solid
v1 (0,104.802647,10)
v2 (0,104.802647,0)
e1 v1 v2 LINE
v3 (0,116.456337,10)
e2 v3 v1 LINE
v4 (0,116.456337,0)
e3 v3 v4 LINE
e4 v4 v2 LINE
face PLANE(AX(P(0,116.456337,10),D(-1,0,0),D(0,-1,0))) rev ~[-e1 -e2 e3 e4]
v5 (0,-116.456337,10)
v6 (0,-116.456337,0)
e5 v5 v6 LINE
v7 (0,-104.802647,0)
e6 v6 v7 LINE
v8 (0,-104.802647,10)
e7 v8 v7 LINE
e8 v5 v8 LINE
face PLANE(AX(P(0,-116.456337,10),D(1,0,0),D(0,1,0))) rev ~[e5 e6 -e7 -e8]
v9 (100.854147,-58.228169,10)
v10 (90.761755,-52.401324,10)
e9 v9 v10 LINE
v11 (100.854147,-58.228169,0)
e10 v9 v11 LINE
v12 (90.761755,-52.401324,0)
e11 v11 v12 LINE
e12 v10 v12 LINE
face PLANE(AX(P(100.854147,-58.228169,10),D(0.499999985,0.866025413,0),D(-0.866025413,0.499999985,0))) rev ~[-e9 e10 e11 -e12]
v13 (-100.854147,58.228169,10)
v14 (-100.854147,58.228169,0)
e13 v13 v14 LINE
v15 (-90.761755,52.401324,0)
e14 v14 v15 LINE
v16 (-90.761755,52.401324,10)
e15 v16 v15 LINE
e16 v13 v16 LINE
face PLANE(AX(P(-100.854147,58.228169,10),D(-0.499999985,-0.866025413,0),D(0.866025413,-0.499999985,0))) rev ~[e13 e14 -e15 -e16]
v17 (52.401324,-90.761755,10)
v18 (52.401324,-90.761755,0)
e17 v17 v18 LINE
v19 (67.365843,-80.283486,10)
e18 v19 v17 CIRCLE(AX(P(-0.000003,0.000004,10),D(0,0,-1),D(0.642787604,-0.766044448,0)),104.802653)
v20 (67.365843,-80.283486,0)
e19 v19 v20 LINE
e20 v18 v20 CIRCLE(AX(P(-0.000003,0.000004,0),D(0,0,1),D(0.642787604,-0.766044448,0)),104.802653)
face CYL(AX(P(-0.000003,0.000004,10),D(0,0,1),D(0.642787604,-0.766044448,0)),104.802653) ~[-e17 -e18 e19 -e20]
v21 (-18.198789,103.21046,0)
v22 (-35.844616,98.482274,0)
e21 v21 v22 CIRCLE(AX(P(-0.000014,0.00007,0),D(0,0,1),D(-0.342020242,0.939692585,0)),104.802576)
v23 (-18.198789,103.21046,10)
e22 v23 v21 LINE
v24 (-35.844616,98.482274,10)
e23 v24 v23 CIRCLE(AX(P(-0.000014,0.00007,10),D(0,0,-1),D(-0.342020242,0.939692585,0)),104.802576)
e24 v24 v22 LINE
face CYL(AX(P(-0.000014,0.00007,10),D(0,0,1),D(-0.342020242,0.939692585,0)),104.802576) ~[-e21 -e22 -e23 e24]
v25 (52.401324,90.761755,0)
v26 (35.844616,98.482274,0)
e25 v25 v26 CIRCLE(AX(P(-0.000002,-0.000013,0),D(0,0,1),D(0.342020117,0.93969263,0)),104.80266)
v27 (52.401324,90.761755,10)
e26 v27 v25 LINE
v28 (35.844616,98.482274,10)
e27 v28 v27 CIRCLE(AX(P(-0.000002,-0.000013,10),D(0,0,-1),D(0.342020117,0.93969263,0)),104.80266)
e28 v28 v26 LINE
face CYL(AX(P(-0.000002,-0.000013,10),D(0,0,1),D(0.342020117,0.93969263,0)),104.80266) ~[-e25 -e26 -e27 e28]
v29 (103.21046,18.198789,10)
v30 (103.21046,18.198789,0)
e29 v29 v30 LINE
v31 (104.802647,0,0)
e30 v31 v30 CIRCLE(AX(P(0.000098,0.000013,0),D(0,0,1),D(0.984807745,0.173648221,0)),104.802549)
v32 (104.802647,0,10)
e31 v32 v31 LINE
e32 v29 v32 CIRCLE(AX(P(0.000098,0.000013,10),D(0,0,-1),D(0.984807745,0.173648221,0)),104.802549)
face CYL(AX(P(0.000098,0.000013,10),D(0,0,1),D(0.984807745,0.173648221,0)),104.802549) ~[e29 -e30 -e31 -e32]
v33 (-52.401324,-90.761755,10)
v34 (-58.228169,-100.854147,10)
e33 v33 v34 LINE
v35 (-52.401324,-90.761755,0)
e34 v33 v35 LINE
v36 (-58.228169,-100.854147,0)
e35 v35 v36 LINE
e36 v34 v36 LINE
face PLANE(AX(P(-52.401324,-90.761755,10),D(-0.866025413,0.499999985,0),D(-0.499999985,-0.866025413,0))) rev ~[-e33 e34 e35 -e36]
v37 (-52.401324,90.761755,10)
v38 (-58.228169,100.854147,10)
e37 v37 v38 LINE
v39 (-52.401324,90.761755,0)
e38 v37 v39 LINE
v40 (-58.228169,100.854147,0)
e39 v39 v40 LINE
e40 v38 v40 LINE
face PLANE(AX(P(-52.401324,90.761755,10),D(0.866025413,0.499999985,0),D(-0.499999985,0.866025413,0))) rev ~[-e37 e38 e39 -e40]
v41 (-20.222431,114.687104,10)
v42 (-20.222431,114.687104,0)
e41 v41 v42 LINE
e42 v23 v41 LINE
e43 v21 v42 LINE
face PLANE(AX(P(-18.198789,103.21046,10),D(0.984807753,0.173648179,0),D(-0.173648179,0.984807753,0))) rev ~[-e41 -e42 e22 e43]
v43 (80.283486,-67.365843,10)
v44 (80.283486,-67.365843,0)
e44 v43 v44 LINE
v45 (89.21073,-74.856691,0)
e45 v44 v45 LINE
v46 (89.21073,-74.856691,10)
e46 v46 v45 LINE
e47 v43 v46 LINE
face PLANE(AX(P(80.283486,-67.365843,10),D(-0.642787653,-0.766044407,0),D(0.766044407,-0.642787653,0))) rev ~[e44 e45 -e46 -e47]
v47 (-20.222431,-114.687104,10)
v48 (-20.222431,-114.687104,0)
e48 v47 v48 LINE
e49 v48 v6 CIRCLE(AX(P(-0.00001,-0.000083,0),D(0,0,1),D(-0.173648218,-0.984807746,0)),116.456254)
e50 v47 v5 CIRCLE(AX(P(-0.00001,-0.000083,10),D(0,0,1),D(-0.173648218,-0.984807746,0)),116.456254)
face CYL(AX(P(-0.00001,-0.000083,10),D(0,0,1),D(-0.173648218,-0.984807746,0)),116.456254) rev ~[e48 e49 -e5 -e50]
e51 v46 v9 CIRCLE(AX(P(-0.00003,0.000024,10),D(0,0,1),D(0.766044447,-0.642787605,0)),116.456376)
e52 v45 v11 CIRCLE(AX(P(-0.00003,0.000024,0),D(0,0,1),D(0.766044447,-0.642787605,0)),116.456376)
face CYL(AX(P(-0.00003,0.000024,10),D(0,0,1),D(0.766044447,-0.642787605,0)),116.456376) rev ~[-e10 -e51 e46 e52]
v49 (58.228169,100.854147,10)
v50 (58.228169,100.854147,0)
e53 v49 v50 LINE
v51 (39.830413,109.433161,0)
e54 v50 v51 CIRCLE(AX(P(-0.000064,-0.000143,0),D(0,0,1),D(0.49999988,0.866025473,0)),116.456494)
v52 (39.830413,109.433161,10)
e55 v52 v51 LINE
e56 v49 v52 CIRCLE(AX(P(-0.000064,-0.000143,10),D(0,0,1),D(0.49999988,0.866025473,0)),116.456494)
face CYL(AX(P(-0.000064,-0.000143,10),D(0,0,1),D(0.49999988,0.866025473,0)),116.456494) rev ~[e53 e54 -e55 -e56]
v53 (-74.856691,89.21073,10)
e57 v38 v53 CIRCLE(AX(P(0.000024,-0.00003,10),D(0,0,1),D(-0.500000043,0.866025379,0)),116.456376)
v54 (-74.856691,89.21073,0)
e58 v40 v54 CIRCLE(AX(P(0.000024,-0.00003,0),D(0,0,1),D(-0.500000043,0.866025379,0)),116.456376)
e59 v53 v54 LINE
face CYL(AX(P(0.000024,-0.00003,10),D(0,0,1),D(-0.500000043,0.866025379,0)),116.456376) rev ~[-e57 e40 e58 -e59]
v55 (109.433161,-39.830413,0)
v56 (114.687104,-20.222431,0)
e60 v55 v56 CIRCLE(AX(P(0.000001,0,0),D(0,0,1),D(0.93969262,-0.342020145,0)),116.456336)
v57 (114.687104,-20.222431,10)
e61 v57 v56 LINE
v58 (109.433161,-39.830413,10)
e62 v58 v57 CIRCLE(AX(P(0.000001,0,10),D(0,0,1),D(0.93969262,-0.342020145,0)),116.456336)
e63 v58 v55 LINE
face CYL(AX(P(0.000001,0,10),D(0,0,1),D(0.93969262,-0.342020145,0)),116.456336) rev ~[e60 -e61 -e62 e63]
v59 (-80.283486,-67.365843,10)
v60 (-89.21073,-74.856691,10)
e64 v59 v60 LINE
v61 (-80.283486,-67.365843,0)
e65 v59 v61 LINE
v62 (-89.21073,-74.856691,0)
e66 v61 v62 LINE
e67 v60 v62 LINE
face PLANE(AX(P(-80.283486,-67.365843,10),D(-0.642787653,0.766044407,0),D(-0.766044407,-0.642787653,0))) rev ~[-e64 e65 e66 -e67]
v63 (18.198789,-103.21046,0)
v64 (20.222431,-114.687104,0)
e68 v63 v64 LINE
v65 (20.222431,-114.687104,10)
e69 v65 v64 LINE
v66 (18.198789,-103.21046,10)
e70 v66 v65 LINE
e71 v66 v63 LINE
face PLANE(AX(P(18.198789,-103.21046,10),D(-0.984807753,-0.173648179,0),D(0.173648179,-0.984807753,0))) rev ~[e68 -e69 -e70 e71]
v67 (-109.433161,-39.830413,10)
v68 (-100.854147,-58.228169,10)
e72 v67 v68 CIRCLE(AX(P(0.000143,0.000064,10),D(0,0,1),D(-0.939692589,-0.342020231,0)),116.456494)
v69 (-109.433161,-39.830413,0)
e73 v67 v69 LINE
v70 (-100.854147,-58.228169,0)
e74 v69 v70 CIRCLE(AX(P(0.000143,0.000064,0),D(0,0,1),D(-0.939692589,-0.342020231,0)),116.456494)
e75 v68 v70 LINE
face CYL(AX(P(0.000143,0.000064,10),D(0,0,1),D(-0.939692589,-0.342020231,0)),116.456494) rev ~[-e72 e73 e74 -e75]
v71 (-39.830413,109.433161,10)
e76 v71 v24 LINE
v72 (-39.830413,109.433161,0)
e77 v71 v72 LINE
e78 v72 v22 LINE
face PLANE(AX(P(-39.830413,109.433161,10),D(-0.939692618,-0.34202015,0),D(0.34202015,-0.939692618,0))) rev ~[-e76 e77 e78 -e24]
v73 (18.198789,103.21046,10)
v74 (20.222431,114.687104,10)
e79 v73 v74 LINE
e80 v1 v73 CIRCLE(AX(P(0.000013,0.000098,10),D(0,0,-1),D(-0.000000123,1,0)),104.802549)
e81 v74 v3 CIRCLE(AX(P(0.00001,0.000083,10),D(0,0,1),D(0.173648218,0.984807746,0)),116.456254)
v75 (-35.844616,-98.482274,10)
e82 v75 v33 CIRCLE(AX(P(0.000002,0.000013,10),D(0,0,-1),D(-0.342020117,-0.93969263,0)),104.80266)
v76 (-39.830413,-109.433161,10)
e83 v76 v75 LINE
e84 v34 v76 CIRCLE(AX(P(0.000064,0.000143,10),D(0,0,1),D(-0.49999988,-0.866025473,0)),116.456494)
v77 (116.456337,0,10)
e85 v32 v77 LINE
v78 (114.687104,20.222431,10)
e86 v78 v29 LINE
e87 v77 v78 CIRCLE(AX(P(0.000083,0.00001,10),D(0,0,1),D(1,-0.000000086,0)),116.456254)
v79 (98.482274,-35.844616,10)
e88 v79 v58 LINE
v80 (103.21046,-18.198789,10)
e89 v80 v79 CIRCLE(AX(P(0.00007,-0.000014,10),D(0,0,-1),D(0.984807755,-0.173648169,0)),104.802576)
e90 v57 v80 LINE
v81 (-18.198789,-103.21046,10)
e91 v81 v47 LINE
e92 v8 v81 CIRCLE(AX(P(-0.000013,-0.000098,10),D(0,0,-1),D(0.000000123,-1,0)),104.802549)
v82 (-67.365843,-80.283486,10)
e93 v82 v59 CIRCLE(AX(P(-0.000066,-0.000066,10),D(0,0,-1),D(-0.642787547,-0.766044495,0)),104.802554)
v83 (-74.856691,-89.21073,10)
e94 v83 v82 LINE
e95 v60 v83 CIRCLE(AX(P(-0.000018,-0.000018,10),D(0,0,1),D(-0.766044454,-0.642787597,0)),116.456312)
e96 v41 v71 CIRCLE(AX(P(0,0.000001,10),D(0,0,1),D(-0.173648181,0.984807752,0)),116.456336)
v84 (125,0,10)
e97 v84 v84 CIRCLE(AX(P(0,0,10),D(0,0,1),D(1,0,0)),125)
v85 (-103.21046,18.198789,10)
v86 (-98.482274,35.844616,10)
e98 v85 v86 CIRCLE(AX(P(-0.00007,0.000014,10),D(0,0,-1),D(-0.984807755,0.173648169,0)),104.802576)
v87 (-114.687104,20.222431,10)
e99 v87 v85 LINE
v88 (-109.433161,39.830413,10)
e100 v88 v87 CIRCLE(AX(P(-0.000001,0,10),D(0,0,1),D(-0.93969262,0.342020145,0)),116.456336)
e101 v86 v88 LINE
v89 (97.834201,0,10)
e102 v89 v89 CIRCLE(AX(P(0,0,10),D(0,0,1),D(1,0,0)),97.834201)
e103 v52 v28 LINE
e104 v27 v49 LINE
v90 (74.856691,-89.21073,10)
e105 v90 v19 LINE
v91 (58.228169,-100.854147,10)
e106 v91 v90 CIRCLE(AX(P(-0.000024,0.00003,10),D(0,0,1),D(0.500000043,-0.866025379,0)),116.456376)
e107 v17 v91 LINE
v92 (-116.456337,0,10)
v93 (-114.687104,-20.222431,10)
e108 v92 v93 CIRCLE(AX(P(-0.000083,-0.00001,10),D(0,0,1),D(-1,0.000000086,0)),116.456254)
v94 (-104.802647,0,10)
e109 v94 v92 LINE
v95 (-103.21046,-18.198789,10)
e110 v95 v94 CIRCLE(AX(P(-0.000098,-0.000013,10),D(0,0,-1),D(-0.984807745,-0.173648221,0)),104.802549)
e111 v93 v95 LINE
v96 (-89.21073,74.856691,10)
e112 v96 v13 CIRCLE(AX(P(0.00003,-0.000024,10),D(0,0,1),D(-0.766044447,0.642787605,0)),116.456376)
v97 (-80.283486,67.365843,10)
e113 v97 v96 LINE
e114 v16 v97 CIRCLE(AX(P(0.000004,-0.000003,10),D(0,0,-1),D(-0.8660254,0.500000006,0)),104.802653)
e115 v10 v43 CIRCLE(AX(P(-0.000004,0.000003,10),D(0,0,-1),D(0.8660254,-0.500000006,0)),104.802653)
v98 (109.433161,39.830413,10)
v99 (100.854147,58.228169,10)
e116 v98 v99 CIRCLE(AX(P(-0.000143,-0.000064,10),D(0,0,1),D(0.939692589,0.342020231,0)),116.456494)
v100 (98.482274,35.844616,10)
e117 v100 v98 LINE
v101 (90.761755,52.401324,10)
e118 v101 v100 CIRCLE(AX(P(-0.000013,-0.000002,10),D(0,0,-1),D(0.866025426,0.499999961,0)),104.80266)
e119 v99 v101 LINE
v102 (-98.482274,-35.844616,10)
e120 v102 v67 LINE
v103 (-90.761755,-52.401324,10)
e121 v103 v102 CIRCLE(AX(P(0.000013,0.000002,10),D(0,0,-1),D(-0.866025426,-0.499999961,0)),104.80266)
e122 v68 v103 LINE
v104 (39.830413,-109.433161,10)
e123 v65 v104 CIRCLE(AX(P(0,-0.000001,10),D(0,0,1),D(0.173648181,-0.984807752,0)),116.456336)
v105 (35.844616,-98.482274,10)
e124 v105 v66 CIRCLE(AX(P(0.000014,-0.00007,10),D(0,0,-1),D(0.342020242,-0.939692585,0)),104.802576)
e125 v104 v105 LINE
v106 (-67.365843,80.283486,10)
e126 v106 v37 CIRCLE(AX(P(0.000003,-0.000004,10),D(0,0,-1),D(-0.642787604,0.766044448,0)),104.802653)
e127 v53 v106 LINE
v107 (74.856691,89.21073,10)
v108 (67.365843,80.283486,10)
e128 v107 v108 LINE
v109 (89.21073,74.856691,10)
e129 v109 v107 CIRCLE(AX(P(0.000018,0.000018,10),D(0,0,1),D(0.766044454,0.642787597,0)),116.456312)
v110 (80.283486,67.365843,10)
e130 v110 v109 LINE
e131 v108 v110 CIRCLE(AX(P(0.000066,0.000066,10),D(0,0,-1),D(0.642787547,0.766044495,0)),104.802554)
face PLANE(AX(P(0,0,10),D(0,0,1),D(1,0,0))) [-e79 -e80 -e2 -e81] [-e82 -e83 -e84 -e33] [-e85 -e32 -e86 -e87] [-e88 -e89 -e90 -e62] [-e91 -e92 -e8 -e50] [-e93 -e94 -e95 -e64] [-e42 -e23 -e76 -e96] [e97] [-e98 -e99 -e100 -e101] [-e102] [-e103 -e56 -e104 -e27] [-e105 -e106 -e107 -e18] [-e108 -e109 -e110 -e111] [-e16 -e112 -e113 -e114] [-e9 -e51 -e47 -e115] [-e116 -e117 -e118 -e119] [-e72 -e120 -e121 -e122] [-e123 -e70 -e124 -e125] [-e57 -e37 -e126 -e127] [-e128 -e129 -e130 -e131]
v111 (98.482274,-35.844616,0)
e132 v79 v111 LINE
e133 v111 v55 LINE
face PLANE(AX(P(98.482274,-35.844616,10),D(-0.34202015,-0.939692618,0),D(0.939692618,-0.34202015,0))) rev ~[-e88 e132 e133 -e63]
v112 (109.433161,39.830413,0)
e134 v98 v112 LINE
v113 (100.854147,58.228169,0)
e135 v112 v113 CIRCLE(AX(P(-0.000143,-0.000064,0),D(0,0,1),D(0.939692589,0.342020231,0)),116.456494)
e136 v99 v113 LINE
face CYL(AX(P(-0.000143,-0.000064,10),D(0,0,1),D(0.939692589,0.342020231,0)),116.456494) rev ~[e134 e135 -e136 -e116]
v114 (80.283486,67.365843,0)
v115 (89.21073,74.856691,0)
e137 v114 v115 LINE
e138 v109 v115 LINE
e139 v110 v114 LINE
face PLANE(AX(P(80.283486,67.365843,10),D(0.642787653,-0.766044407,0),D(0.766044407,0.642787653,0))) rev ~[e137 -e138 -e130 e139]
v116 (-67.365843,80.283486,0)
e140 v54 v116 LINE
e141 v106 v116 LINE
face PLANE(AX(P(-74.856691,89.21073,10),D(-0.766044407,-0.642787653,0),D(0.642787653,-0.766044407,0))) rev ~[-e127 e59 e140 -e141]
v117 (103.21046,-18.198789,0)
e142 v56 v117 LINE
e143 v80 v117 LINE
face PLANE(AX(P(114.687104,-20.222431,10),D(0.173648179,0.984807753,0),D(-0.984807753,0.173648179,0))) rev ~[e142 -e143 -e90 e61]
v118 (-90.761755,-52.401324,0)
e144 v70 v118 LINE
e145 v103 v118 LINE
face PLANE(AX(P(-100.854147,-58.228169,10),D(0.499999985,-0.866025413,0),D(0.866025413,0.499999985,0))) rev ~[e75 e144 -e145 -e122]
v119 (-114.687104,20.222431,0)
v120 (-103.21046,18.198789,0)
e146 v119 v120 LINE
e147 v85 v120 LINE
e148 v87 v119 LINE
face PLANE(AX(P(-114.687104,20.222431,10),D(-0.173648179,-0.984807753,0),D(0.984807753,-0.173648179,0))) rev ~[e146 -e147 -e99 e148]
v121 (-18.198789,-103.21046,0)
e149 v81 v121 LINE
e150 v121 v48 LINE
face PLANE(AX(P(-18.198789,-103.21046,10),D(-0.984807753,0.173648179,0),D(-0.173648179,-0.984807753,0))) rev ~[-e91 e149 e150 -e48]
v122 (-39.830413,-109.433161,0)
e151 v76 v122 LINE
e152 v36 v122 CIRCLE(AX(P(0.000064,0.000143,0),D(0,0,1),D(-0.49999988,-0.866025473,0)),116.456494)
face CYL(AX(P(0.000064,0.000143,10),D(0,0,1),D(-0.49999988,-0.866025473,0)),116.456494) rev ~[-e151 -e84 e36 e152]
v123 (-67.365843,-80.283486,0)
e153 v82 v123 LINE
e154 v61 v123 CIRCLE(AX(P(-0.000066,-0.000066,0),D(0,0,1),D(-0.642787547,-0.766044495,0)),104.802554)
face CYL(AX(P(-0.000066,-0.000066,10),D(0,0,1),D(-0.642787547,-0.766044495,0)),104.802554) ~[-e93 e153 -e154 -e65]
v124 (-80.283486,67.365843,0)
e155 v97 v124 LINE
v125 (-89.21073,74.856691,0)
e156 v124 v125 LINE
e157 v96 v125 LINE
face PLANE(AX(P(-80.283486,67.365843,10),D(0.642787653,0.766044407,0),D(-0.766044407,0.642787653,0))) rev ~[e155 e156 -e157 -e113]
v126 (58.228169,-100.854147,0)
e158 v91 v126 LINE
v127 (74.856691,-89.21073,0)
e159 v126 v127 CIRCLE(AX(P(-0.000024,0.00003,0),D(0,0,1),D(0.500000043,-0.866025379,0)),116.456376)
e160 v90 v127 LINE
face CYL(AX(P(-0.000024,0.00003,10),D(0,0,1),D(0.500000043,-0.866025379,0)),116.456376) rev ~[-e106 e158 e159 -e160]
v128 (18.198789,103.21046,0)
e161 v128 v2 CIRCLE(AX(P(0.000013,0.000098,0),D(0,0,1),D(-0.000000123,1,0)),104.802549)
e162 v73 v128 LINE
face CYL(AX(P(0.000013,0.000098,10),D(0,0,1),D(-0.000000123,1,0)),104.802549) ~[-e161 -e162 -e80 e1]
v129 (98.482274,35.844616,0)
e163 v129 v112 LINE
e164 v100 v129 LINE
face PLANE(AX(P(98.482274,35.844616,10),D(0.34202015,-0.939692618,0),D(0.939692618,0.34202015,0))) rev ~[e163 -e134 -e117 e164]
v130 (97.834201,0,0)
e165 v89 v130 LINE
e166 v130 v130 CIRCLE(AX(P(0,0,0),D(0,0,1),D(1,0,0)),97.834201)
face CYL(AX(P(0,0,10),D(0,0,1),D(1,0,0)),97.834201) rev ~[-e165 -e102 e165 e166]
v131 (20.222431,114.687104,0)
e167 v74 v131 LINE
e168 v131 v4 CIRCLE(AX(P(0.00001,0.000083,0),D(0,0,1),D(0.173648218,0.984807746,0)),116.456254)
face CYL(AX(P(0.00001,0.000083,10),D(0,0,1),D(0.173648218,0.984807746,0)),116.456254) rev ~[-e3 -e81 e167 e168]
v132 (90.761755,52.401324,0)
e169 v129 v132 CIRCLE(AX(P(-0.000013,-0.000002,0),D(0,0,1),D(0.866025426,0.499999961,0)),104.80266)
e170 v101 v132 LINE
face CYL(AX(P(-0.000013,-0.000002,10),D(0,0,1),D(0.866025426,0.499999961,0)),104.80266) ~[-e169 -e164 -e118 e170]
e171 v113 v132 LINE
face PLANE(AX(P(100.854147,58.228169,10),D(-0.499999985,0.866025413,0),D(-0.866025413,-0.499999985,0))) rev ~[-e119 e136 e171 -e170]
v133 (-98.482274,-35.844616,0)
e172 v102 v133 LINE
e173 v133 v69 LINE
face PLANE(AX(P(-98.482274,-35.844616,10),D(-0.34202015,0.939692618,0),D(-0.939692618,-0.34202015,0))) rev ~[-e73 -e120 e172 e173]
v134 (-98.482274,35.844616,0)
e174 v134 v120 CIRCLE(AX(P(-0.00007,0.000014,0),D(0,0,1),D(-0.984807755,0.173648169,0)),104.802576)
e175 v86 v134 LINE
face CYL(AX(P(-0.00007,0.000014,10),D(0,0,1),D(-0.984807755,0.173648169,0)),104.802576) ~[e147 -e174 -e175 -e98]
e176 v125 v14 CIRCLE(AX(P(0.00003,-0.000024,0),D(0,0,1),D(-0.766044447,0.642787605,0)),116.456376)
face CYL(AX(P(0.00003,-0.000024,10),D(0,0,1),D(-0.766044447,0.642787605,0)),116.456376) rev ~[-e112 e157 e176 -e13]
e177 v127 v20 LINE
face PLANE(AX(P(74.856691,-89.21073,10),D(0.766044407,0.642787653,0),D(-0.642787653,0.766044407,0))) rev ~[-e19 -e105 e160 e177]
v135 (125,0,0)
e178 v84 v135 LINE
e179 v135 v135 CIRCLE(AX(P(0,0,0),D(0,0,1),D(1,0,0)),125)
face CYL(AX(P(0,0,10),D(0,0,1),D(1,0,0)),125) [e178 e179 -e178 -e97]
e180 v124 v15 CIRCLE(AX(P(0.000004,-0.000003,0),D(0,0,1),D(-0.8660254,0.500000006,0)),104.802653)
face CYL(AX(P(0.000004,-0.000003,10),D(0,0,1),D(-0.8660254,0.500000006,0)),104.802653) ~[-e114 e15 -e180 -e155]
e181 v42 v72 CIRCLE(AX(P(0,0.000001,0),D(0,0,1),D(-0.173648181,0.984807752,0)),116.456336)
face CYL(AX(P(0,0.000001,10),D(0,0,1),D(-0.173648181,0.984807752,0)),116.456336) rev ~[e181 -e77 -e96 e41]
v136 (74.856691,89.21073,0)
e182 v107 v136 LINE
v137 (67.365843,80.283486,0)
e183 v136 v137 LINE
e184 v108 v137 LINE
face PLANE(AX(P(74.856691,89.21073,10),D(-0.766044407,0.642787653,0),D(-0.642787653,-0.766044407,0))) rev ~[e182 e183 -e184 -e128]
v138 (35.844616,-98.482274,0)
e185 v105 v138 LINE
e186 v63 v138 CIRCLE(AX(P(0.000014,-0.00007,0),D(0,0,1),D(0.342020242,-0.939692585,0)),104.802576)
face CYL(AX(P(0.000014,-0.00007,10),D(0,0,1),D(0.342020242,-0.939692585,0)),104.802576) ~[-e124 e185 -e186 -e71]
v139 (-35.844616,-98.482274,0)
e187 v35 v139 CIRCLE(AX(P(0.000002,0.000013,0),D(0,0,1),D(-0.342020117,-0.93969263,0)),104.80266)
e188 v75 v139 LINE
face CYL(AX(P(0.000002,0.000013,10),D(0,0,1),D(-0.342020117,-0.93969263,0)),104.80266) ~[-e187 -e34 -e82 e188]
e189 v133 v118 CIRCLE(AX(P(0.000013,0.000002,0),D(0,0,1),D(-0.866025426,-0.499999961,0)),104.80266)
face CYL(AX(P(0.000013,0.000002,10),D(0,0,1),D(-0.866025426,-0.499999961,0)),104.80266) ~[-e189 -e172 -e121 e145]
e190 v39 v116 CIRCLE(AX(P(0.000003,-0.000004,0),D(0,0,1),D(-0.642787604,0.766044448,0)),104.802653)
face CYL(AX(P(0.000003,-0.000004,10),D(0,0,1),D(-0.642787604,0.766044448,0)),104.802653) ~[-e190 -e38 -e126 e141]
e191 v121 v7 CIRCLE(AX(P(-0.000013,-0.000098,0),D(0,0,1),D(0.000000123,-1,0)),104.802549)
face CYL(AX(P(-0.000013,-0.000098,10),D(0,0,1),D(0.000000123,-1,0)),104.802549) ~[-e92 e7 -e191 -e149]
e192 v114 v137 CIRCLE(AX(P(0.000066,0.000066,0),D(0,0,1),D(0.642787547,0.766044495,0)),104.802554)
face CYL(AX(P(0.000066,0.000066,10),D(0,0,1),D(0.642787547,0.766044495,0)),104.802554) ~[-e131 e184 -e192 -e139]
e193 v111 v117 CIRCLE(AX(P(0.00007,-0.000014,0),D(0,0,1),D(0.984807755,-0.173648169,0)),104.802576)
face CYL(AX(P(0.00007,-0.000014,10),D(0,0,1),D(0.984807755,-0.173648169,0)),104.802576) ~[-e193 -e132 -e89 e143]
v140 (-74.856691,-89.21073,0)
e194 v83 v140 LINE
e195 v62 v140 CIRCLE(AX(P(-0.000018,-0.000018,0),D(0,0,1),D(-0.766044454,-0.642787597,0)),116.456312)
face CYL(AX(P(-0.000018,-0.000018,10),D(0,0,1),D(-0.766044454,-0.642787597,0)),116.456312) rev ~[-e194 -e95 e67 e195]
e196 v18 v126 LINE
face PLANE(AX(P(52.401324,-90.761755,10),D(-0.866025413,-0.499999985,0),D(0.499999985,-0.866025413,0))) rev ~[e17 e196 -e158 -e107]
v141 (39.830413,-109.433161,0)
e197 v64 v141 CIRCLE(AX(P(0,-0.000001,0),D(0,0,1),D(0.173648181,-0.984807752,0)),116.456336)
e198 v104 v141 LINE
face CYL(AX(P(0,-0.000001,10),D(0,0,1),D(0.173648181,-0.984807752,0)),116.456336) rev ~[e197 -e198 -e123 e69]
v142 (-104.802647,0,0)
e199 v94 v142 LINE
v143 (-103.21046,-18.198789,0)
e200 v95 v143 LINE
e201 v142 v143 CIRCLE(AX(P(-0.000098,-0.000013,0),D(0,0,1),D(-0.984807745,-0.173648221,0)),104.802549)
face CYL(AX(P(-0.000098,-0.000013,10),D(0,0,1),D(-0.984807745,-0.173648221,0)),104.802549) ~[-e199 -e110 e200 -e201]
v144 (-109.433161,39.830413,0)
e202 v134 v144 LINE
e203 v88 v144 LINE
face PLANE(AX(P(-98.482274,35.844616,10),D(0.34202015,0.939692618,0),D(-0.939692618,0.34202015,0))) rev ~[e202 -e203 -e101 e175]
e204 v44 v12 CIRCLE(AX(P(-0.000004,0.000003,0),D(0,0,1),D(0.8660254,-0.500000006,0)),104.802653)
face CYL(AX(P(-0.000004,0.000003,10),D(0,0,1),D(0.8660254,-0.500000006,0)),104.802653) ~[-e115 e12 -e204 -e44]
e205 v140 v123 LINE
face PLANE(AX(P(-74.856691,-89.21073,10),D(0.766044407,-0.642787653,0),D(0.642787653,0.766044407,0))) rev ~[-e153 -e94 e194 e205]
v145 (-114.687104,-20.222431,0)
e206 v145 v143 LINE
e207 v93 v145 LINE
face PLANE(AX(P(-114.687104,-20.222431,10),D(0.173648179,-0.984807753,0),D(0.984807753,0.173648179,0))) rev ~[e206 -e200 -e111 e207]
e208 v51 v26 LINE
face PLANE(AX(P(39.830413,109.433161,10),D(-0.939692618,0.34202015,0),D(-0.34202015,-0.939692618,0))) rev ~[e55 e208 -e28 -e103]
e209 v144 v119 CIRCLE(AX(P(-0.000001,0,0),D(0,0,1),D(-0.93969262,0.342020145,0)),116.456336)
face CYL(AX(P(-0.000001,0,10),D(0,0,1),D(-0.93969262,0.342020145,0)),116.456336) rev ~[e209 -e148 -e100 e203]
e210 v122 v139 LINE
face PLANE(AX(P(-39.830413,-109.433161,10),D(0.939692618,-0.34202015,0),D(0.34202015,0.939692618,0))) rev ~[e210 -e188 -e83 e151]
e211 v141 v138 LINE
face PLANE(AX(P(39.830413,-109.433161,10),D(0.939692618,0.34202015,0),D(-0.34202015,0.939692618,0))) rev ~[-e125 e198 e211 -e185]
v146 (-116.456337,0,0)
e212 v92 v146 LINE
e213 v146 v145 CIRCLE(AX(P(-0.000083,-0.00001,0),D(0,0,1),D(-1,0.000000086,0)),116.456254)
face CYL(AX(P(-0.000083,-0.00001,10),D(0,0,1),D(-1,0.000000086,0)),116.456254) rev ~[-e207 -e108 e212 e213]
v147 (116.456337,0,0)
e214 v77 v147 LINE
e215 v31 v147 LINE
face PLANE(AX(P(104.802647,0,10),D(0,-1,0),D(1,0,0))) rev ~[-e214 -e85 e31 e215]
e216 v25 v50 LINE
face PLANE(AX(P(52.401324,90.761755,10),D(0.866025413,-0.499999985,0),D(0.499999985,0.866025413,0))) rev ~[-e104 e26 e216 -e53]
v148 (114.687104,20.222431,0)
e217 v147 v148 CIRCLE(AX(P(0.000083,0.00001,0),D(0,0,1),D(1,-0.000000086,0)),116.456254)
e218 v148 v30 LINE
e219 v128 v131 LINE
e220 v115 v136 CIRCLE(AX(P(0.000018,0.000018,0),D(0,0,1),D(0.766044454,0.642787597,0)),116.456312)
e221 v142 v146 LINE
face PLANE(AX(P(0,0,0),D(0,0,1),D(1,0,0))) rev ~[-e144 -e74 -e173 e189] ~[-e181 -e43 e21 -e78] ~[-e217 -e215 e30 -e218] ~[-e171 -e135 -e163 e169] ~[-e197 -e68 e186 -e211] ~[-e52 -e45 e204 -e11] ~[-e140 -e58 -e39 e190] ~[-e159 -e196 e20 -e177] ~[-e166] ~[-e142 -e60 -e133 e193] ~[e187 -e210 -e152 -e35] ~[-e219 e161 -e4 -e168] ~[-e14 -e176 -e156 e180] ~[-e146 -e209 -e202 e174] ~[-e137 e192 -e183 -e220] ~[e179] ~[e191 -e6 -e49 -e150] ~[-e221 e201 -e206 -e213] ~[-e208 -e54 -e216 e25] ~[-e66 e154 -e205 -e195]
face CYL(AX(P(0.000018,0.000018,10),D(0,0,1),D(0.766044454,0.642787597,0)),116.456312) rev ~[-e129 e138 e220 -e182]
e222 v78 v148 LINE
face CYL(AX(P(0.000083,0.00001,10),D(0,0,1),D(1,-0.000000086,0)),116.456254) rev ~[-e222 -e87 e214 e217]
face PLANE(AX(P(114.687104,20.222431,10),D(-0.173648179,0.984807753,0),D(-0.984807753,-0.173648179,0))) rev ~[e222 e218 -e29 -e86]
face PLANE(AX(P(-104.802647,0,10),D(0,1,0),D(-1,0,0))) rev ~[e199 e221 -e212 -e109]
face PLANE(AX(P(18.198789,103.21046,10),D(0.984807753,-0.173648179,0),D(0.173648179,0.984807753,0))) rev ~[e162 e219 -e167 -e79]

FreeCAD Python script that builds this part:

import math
import FreeCAD as App
import Part
import Sketcher

V = App.Vector
Q = App.Units.Quantity

doc = App.newDocument("Part")
body = doc.addObject("PartDesign::Body", "Body")

# Sketch on XY plane
sketch1 = body.newObject("Sketcher::SketchObject", "Sketch")
sketch1.AttachmentSupport = (doc.getObject("XY_Plane"), [""])
sketch1.MapMode = "FlatFace"
sketch1.addGeometry([
    Part.Circle(V(0, 0, 0), V(0, 0, 1), 50),  # 0
    Part.LineSegment(V(-10, 10, 0), V(-10, 30, 0)),  # 1
    Part.LineSegment(V(-10, 30, 0), V(10, 30, 0)),  # 2
    Part.LineSegment(V(10, 30, 0), V(10, 10, 0)),  # 3
    Part.LineSegment(V(10, 10, 0), V(30, 10, 0)),  # 4
    Part.LineSegment(V(30, 10, 0), V(30, -10, 0)),  # 5
    Part.LineSegment(V(30, -10, 0), V(10, -10, 0)),  # 6
    Part.LineSegment(V(10, -10, 0), V(10, -30, 0)),  # 7
    Part.LineSegment(V(10, -30, 0), V(-10, -30, 0)),  # 8
    Part.LineSegment(V(-10, -30, 0), V(-10, -10, 0)),  # 9
    Part.LineSegment(V(-10, -10, 0), V(-30, -10, 0)),  # 10
    Part.LineSegment(V(-30, -10, 0), V(-30, 10, 0)),  # 11
    Part.LineSegment(V(-30, 10, 0), V(-10, 10, 0)),  # 12
], False)
sketch1.addConstraint([
    Sketcher.Constraint("Coincident", 1, 2, 2, 1),
    Sketcher.Constraint("Coincident", 2, 2, 3, 1),
    Sketcher.Constraint("Coincident", 3, 2, 4, 1),
    Sketcher.Constraint("Coincident", 4, 2, 5, 1),
    Sketcher.Constraint("Coincident", 5, 2, 6, 1),
    Sketcher.Constraint("Coincident", 6, 2, 7, 1),
    Sketcher.Constraint("Coincident", 7, 2, 8, 1),
    Sketcher.Constraint("Coincident", 8, 2, 9, 1),
    Sketcher.Constraint("Coincident", 9, 2, 10, 1),
    Sketcher.Constraint("Coincident", 10, 2, 11, 1),
    Sketcher.Constraint("Coincident", 11, 2, 12, 1),
    Sketcher.Constraint("Coincident", 12, 2, 1, 1),
    Sketcher.Constraint("Vertical", 1),
    Sketcher.Constraint("Horizontal", 2),
    Sketcher.Constraint("Vertical", 3),
    Sketcher.Constraint("Horizontal", 4),
    Sketcher.Constraint("Vertical", 5),
    Sketcher.Constraint("Horizontal", 6),
    Sketcher.Constraint("Vertical", 7),
    Sketcher.Constraint("Horizontal", 8),
    Sketcher.Constraint("Vertical", 9),
    Sketcher.Constraint("Horizontal", 10),
    Sketcher.Constraint("Vertical", 11),
    Sketcher.Constraint("Horizontal", 12),
    Sketcher.Constraint("Coincident", 0, 3, -1, 1),
    Sketcher.Constraint("Symmetric", 1, 2, 7, 2, -1, 1),
    Sketcher.Constraint("Symmetric", 3, 2, 9, 2, -1, 1),
    Sketcher.Constraint("Symmetric", 5, 2, 11, 2, -1, 1),
    Sketcher.Constraint("Symmetric", 6, 2, 9, 2, -2),
    Sketcher.Constraint("Equal", 2, 4),
    Sketcher.Constraint("Equal", 12, 1),
    Sketcher.Constraint("Equal", 3, 5),
    Sketcher.Constraint("Diameter", 0, Q("100 mm")),
    Sketcher.Constraint("DistanceX", 2, 1, 2, 2, Q("20 mm")),
])
pad1 = body.newObject("PartDesign::Pad", "Pad")
pad1.Profile = sketch1
pad1.Length = 10

# Sketch on XY plane
sketch2 = body.newObject("Sketcher::SketchObject", "Sketch001")
sketch2.AttachmentSupport = (doc.getObject("XY_Plane"), [""])
sketch2.MapMode = "FlatFace"
sketch2.AttachmentOffset = App.Placement(V(0, 0, 10), App.Rotation())
sketch2.addGeometry([
    Part.Circle(V(0, 0, 0), V(0, 0, 1), 125),
    Part.Circle(V(0, 0, 0), V(0, 0, 1), 40.44952),
], False)
sketch2.addConstraint([
    Sketcher.Constraint("Coincident", 0, 3, -1, 1),
    Sketcher.Constraint("Coincident", 1, 3, -1, 1),
    Sketcher.Constraint("Diameter", 0, Q("250 mm")),
    Sketcher.Constraint("Diameter", 1, Q("80.89904 mm")),
])
pad2 = body.newObject("PartDesign::Pad", "Pad001")
pad2.Profile = sketch2
pad2.Length = 10
pad2.Reversed = True

# Sketch on XY plane
sketch3 = body.newObject("Sketcher::SketchObject", "Sketch002")
sketch3.AttachmentSupport = (doc.getObject("XY_Plane"), [""])
sketch3.MapMode = "FlatFace"
sketch3.AttachmentOffset = App.Placement(V(0, 0, 10), App.Rotation())
sketch3.addGeometry([
    Part.LineSegment(V(0, 116.456337, 0), V(0, 104.802647, 0)),  # 0
    Part.ArcOfCircle(Part.Circle(V(0.000013, 0.000098, 0), V(0, 0, 1), 104.802549), math.radians(79.999997), math.radians(90.000007)),  # 1
    Part.LineSegment(V(18.198789, 103.21046, 0), V(20.222431, 114.687104, 0)),  # 2
    Part.ArcOfCircle(Part.Circle(V(0.00001, 0.000083, 0), V(0, 0, 1), 116.456254), math.radians(79.999998), math.radians(90.000005)),  # 3
    Part.ArcOfCircle(Part.Circle(V(-0.000014, 0.00007, 0), V(0, 0, 1), 104.802576), math.radians(99.999999), math.radians(110.000006)),  # 4
    Part.LineSegment(V(-18.198789, 103.21046, 0), V(-20.222431, 114.687104, 0)),  # 5
    Part.ArcOfCircle(Part.Circle(V(0, 0.000001, 0), V(0, 0, 1), 116.456336), math.radians(100), math.radians(110)),  # 6
    Part.LineSegment(V(-39.830413, 109.433161, 0), V(-35.844616, 98.482274, 0)),  # 7
    Part.ArcOfCircle(Part.Circle(V(0.000003, -0.000004, 0), V(0, 0, 1), 104.802653), math.radians(120), math.radians(130)),  # 8
    Part.LineSegment(V(-52.401324, 90.761755, 0), V(-58.228169, 100.854147, 0)),  # 9
    Part.ArcOfCircle(Part.Circle(V(0.000024, -0.00003, 0), V(0, 0, 1), 116.456376), math.radians(120.000003), math.radians(130)),  # 10
    Part.LineSegment(V(-74.856691, 89.21073, 0), V(-67.365843, 80.283486, 0)),  # 11
    Part.ArcOfCircle(Part.Circle(V(0.000004, -0.000003, 0), V(0, 0, 1), 104.802653), math.radians(140), math.radians(150)),  # 12
    Part.LineSegment(V(-80.283486, 67.365843, 0), V(-89.21073, 74.856691, 0)),  # 13
    Part.ArcOfCircle(Part.Circle(V(0.00003, -0.000024, 0), V(0, 0, 1), 116.456376), math.radians(140), math.radians(149.999997)),  # 14
    Part.LineSegment(V(-100.854147, 58.228169, 0), V(-90.761755, 52.401324, 0)),  # 15
    Part.ArcOfCircle(Part.Circle(V(-0.00007, 0.000014, 0), V(0, 0, 1), 104.802576), math.radians(159.999994), math.radians(170.000001)),  # 16
    Part.LineSegment(V(-98.482274, 35.844616, 0), V(-109.433161, 39.830413, 0)),  # 17
    Part.ArcOfCircle(Part.Circle(V(-0.000001, 0, 0), V(0, 0, 1), 116.456336), math.radians(160), math.radians(170)),  # 18
    Part.LineSegment(V(-114.687104, 20.222431, 0), V(-103.21046, 18.198789, 0)),  # 19
    Part.ArcOfCircle(Part.Circle(V(-0.000098, -0.000013, 0), V(0, 0, 1), 104.802549), math.radians(179.999993), math.radians(190.000003)),  # 20
    Part.LineSegment(V(-104.802647, 0, 0), V(-116.456337, 0, 0)),  # 21
    Part.ArcOfCircle(Part.Circle(V(-0.000083, -0.00001, 0), V(0, 0, 1), 116.456254), math.radians(179.999995), math.radians(190.000002)),  # 22
    Part.LineSegment(V(-114.687104, -20.222431, 0), V(-103.21046, -18.198789, 0)),  # 23
    Part.ArcOfCircle(Part.Circle(V(0.000013, 0.000002, 0), V(0, 0, 1), 104.80266), math.radians(-160.000002), math.radians(-150.000003)),  # 24
    Part.LineSegment(V(-98.482274, -35.844616, 0), V(-109.433161, -39.830413, 0)),  # 25
    Part.ArcOfCircle(Part.Circle(V(0.000143, 0.000064, 0), V(0, 0, 1), 116.456494), math.radians(-159.999995), math.radians(-150.000008)),  # 26
    Part.LineSegment(V(-100.854147, -58.228169, 0), V(-90.761755, -52.401324, 0)),  # 27
    Part.ArcOfCircle(Part.Circle(V(-0.000066, -0.000066, 0), V(0, 0, 1), 104.802554), math.radians(-140.000005), math.radians(-129.999995)),  # 28
    Part.LineSegment(V(-80.283486, -67.365843, 0), V(-89.21073, -74.856691, 0)),  # 29
    Part.ArcOfCircle(Part.Circle(V(-0.000018, -0.000018, 0), V(0, 0, 1), 116.456312), math.radians(-140.000001), math.radians(-129.999999)),  # 30
    Part.LineSegment(V(-74.856691, -89.21073, 0), V(-67.365843, -80.283486, 0)),  # 31
    Part.ArcOfCircle(Part.Circle(V(0.000002, 0.000013, 0), V(0, 0, 1), 104.80266), math.radians(-119.999997), math.radians(-109.999998)),  # 32
    Part.LineSegment(V(-52.401324, -90.761755, 0), V(-58.228169, -100.854147, 0)),  # 33
    Part.ArcOfCircle(Part.Circle(V(0.000064, 0.000143, 0), V(0, 0, 1), 116.456494), math.radians(-119.999992), math.radians(-110.000005)),  # 34
    Part.LineSegment(V(-39.830413, -109.433161, 0), V(-35.844616, -98.482274, 0)),  # 35
    Part.ArcOfCircle(Part.Circle(V(-0.000013, -0.000098, 0), V(0, 0, 1), 104.802549), math.radians(-100.000003), math.radians(-89.999993)),  # 36
    Part.LineSegment(V(-18.198789, -103.21046, 0), V(-20.222431, -114.687104, 0)),  # 37
    Part.ArcOfCircle(Part.Circle(V(-0.00001, -0.000083, 0), V(0, 0, 1), 116.456254), math.radians(-100.000002), math.radians(-89.999995)),  # 38
    Part.LineSegment(V(0, -116.456337, 0), V(0, -104.802647, 0)),  # 39
    Part.ArcOfCircle(Part.Circle(V(0.000014, -0.00007, 0), V(0, 0, 1), 104.802576), math.radians(-80.000001), math.radians(-69.999994)),  # 40
    Part.LineSegment(V(18.198789, -103.21046, 0), V(20.222431, -114.687104, 0)),  # 41
    Part.ArcOfCircle(Part.Circle(V(0, -0.000001, 0), V(0, 0, 1), 116.456336), math.radians(-80), math.radians(-70)),  # 42
    Part.LineSegment(V(39.830413, -109.433161, 0), V(35.844616, -98.482274, 0)),  # 43
    Part.ArcOfCircle(Part.Circle(V(-0.000003, 0.000004, 0), V(0, 0, 1), 104.802653), math.radians(-60), math.radians(-50)),  # 44
    Part.LineSegment(V(52.401324, -90.761755, 0), V(58.228169, -100.854147, 0)),  # 45
    Part.ArcOfCircle(Part.Circle(V(-0.000024, 0.00003, 0), V(0, 0, 1), 116.456376), math.radians(-59.999997), math.radians(-50)),  # 46
    Part.LineSegment(V(74.856691, -89.21073, 0), V(67.365843, -80.283486, 0)),  # 47
    Part.ArcOfCircle(Part.Circle(V(-0.000004, 0.000003, 0), V(0, 0, 1), 104.802653), math.radians(-40), math.radians(-30)),  # 48
    Part.LineSegment(V(80.283486, -67.365843, 0), V(89.21073, -74.856691, 0)),  # 49
    Part.ArcOfCircle(Part.Circle(V(-0.00003, 0.000024, 0), V(0, 0, 1), 116.456376), math.radians(-40), math.radians(-30.000003)),  # 50
    Part.LineSegment(V(100.854147, -58.228169, 0), V(90.761755, -52.401324, 0)),  # 51
    Part.ArcOfCircle(Part.Circle(V(0.00007, -0.000014, 0), V(0, 0, 1), 104.802576), math.radians(-20.000006), math.radians(-9.999999)),  # 52
    Part.LineSegment(V(98.482274, -35.844616, 0), V(109.433161, -39.830413, 0)),  # 53
    Part.ArcOfCircle(Part.Circle(V(0.000001, 0, 0), V(0, 0, 1), 116.456336), math.radians(-20), math.radians(-10)),  # 54
    Part.LineSegment(V(114.687104, -20.222431, 0), V(103.21046, -18.198789, 0)),  # 55
    Part.ArcOfCircle(Part.Circle(V(0.000098, 0.000013, 0), V(0, 0, 1), 104.802549), math.radians(-0.000007), math.radians(10.000003)),  # 56
    Part.LineSegment(V(104.802647, 0, 0), V(116.456337, 0, 0)),  # 57
    Part.ArcOfCircle(Part.Circle(V(0.000083, 0.00001, 0), V(0, 0, 1), 116.456254), math.radians(-0.000005), math.radians(10.000002)),  # 58
    Part.LineSegment(V(114.687104, 20.222431, 0), V(103.21046, 18.198789, 0)),  # 59
    Part.ArcOfCircle(Part.Circle(V(-0.000013, -0.000002, 0), V(0, 0, 1), 104.80266), math.radians(19.999998), math.radians(29.999997)),  # 60
    Part.LineSegment(V(98.482274, 35.844616, 0), V(109.433161, 39.830413, 0)),  # 61
    Part.ArcOfCircle(Part.Circle(V(-0.000143, -0.000064, 0), V(0, 0, 1), 116.456494), math.radians(20.000005), math.radians(29.999992)),  # 62
    Part.LineSegment(V(100.854147, 58.228169, 0), V(90.761755, 52.401324, 0)),  # 63
    Part.ArcOfCircle(Part.Circle(V(0.000066, 0.000066, 0), V(0, 0, 1), 104.802554), math.radians(39.999995), math.radians(50.000005)),  # 64
    Part.LineSegment(V(80.283486, 67.365843, 0), V(89.21073, 74.856691, 0)),  # 65
    Part.ArcOfCircle(Part.Circle(V(0.000018, 0.000018, 0), V(0, 0, 1), 116.456312), math.radians(39.999999), math.radians(50.000001)),  # 66
    Part.LineSegment(V(74.856691, 89.21073, 0), V(67.365843, 80.283486, 0)),  # 67
    Part.ArcOfCircle(Part.Circle(V(-0.000002, -0.000013, 0), V(0, 0, 1), 104.80266), math.radians(60.000003), math.radians(70.000002)),  # 68
    Part.LineSegment(V(52.401324, 90.761755, 0), V(58.228169, 100.854147, 0)),  # 69
    Part.ArcOfCircle(Part.Circle(V(-0.000064, -0.000143, 0), V(0, 0, 1), 116.456494), math.radians(60.000008), math.radians(69.999995)),  # 70
    Part.LineSegment(V(39.830413, 109.433161, 0), V(35.844616, 98.482274, 0)),  # 71
], False)
sketch3.addConstraint([
    Sketcher.Constraint("Coincident", 0, 2, 1, 2),
    Sketcher.Constraint("Coincident", 1, 1, 2, 1),
    Sketcher.Constraint("Coincident", 2, 2, 3, 1),
    Sketcher.Constraint("Coincident", 3, 2, 0, 1),
    Sketcher.Constraint("Coincident", 4, 1, 5, 1),
    Sketcher.Constraint("Coincident", 5, 2, 6, 1),
    Sketcher.Constraint("Coincident", 6, 2, 7, 1),
    Sketcher.Constraint("Coincident", 7, 2, 4, 2),
    Sketcher.Constraint("Coincident", 8, 1, 9, 1),
    Sketcher.Constraint("Coincident", 9, 2, 10, 1),
    Sketcher.Constraint("Coincident", 10, 2, 11, 1),
    Sketcher.Constraint("Coincident", 11, 2, 8, 2),
    Sketcher.Constraint("Coincident", 12, 1, 13, 1),
    Sketcher.Constraint("Coincident", 13, 2, 14, 1),
    Sketcher.Constraint("Coincident", 14, 2, 15, 1),
    Sketcher.Constraint("Coincident", 15, 2, 12, 2),
    Sketcher.Constraint("Coincident", 16, 1, 17, 1),
    Sketcher.Constraint("Coincident", 17, 2, 18, 1),
    Sketcher.Constraint("Coincident", 18, 2, 19, 1),
    Sketcher.Constraint("Coincident", 19, 2, 16, 2),
    Sketcher.Constraint("Coincident", 20, 1, 21, 1),
    Sketcher.Constraint("Coincident", 21, 2, 22, 1),
    Sketcher.Constraint("Coincident", 22, 2, 23, 1),
    Sketcher.Constraint("Coincident", 23, 2, 20, 2),
    Sketcher.Constraint("Coincident", 24, 1, 25, 1),
    Sketcher.Constraint("Coincident", 25, 2, 26, 1),
    Sketcher.Constraint("Coincident", 26, 2, 27, 1),
    Sketcher.Constraint("Coincident", 27, 2, 24, 2),
    Sketcher.Constraint("Coincident", 28, 1, 29, 1),
    Sketcher.Constraint("Coincident", 29, 2, 30, 1),
    Sketcher.Constraint("Coincident", 30, 2, 31, 1),
    Sketcher.Constraint("Coincident", 31, 2, 28, 2),
    Sketcher.Constraint("Coincident", 32, 1, 33, 1),
    Sketcher.Constraint("Coincident", 33, 2, 34, 1),
    Sketcher.Constraint("Coincident", 34, 2, 35, 1),
    Sketcher.Constraint("Coincident", 35, 2, 32, 2),
    Sketcher.Constraint("Coincident", 36, 1, 37, 1),
    Sketcher.Constraint("Coincident", 37, 2, 38, 1),
    Sketcher.Constraint("Coincident", 38, 2, 39, 1),
    Sketcher.Constraint("Coincident", 39, 2, 36, 2),
    Sketcher.Constraint("Coincident", 40, 1, 41, 1),
    Sketcher.Constraint("Coincident", 41, 2, 42, 1),
    Sketcher.Constraint("Coincident", 42, 2, 43, 1),
    Sketcher.Constraint("Coincident", 43, 2, 40, 2),
    Sketcher.Constraint("Coincident", 44, 1, 45, 1),
    Sketcher.Constraint("Coincident", 45, 2, 46, 1),
    Sketcher.Constraint("Coincident", 46, 2, 47, 1),
    Sketcher.Constraint("Coincident", 47, 2, 44, 2),
    Sketcher.Constraint("Coincident", 48, 1, 49, 1),
    Sketcher.Constraint("Coincident", 49, 2, 50, 1),
    Sketcher.Constraint("Coincident", 50, 2, 51, 1),
    Sketcher.Constraint("Coincident", 51, 2, 48, 2),
    Sketcher.Constraint("Coincident", 52, 1, 53, 1),
    Sketcher.Constraint("Coincident", 53, 2, 54, 1),
    Sketcher.Constraint("Coincident", 54, 2, 55, 1),
    Sketcher.Constraint("Coincident", 55, 2, 52, 2),
    Sketcher.Constraint("Coincident", 56, 1, 57, 1),
    Sketcher.Constraint("Coincident", 57, 2, 58, 1),
    Sketcher.Constraint("Coincident", 58, 2, 59, 1),
    Sketcher.Constraint("Coincident", 59, 2, 56, 2),
    Sketcher.Constraint("Coincident", 60, 1, 61, 1),
    Sketcher.Constraint("Coincident", 61, 2, 62, 1),
    Sketcher.Constraint("Coincident", 62, 2, 63, 1),
    Sketcher.Constraint("Coincident", 63, 2, 60, 2),
    Sketcher.Constraint("Coincident", 64, 1, 65, 1),
    Sketcher.Constraint("Coincident", 65, 2, 66, 1),
    Sketcher.Constraint("Coincident", 66, 2, 67, 1),
    Sketcher.Constraint("Coincident", 67, 2, 64, 2),
    Sketcher.Constraint("Coincident", 68, 1, 69, 1),
    Sketcher.Constraint("Coincident", 69, 2, 70, 1),
    Sketcher.Constraint("Coincident", 70, 2, 71, 1),
    Sketcher.Constraint("Coincident", 71, 2, 68, 2),
    Sketcher.Constraint("Vertical", 0),
    Sketcher.Constraint("Horizontal", 21),
    Sketcher.Constraint("Vertical", 39),
    Sketcher.Constraint("Horizontal", 57),
    Sketcher.Constraint("Coincident", 6, 3, -1, 1),
    Sketcher.Constraint("Coincident", 8, 3, -1, 1),
    Sketcher.Constraint("Coincident", 12, 3, -1, 1),
    Sketcher.Constraint("Coincident", 18, 3, -1, 1),
    Sketcher.Constraint("Coincident", 42, 3, -1, 1),
    Sketcher.Constraint("Coincident", 44, 3, -1, 1),
    Sketcher.Constraint("Coincident", 48, 3, -1, 1),
    Sketcher.Constraint("Coincident", 54, 3, -1, 1),
    Sketcher.Constraint("Coincident", 14, 3, 10, 3),
    Sketcher.Constraint("Coincident", 50, 3, 46, 3),
    Sketcher.Constraint("PointOnObject", 0, 2, -2),
    Sketcher.Constraint("PointOnObject", 20, 1, -1),
    Sketcher.Constraint("PointOnObject", 38, 2, -2),
    Sketcher.Constraint("PointOnObject", 56, 1, -1),
    Sketcher.Constraint("Radius", 1, Q("104.802549 mm")),
    Sketcher.Constraint("Radius", 20, Q("104.802549 mm")),
    Sketcher.Constraint("Radius", 24, Q("104.80266 mm")),
    Sketcher.Constraint("Radius", 30, Q("116.456312 mm")),
    Sketcher.Constraint("Radius", 32, Q("104.80266 mm")),
    Sketcher.Constraint("Radius", 36, Q("104.802549 mm")),
    Sketcher.Constraint("Radius", 56, Q("104.802549 mm")),
    Sketcher.Constraint("Radius", 60, Q("104.80266 mm")),
    Sketcher.Constraint("Radius", 66, Q("116.456312 mm")),
    Sketcher.Constraint("Radius", 68, Q("104.80266 mm")),
    Sketcher.Constraint("Radius", 3, Q("116.456254 mm")),
    Sketcher.Constraint("Radius", 4, Q("104.802576 mm")),
    Sketcher.Constraint("Radius", 6, Q("116.456336 mm")),
    Sketcher.Constraint("Radius", 8, Q("104.802653 mm")),
    Sketcher.Constraint("Radius", 10, Q("116.456376 mm")),
    Sketcher.Constraint("Radius", 12, Q("104.802653 mm")),
    Sketcher.Constraint("Radius", 14, Q("116.456376 mm")),
    Sketcher.Constraint("Radius", 16, Q("104.802576 mm")),
    Sketcher.Constraint("Radius", 18, Q("116.456336 mm")),
    Sketcher.Constraint("Radius", 22, Q("116.456254 mm")),
    Sketcher.Constraint("Radius", 26, Q("116.456494 mm")),
    Sketcher.Constraint("Radius", 28, Q("104.802554 mm")),
    Sketcher.Constraint("Radius", 34, Q("116.456494 mm")),
    Sketcher.Constraint("Radius", 38, Q("116.456254 mm")),
    Sketcher.Constraint("Radius", 40, Q("104.802576 mm")),
    Sketcher.Constraint("Radius", 42, Q("116.456336 mm")),
    Sketcher.Constraint("Radius", 44, Q("104.802653 mm")),
    Sketcher.Constraint("Radius", 46, Q("116.456376 mm")),
    Sketcher.Constraint("Radius", 48, Q("104.802653 mm")),
    Sketcher.Constraint("Radius", 50, Q("116.456376 mm")),
    Sketcher.Constraint("Radius", 52, Q("104.802576 mm")),
    Sketcher.Constraint("Radius", 54, Q("116.456336 mm")),
    Sketcher.Constraint("Radius", 58, Q("116.456254 mm")),
    Sketcher.Constraint("Radius", 62, Q("116.456494 mm")),
    Sketcher.Constraint("Radius", 64, Q("104.802554 mm")),
    Sketcher.Constraint("Radius", 70, Q("116.456494 mm")),
    Sketcher.Constraint("DistanceX", 21, 2, 21, 1, Q("11.65369 mm")),
    Sketcher.Constraint("DistanceX", 57, 1, 57, 2, Q("11.65369 mm")),
    Sketcher.Constraint("DistanceY", 0, 2, 0, 1, Q("11.65369 mm")),
    Sketcher.Constraint("DistanceY", 39, 1, 39, 2, Q("11.65369 mm")),
    Sketcher.Constraint("Distance", 2, Q("11.65369 mm")),
    Sketcher.Constraint("Distance", 5, Q("11.65369 mm")),
    Sketcher.Constraint("Distance", 7, Q("11.653691 mm")),
    Sketcher.Constraint("Distance", 9, Q("11.65369 mm")),
    Sketcher.Constraint("Distance", 11, Q("11.65369 mm")),
    Sketcher.Constraint("Distance", 17, Q("11.653691 mm")),
    Sketcher.Constraint("Distance", 19, Q("11.65369 mm")),
    Sketcher.Constraint("Distance", 23, Q("11.65369 mm")),
    Sketcher.Constraint("Distance", 25, Q("11.653691 mm")),
    Sketcher.Constraint("Distance", 27, Q("11.65369 mm")),
    Sketcher.Constraint("Distance", 29, Q("11.65369 mm")),
    Sketcher.Constraint("Distance", 31, Q("11.65369 mm")),
    Sketcher.Constraint("Distance", 33, Q("11.65369 mm")),
    Sketcher.Constraint("Distance", 35, Q("11.653691 mm")),
    Sketcher.Constraint("Distance", 37, Q("11.65369 mm")),
    Sketcher.Constraint("Distance", 41, Q("11.65369 mm")),
    Sketcher.Constraint("Distance", 43, Q("11.653691 mm")),
    Sketcher.Constraint("Distance", 45, Q("11.65369 mm")),
    Sketcher.Constraint("Distance", 47, Q("11.65369 mm")),
    Sketcher.Constraint("Distance", 53, Q("11.653691 mm")),
    Sketcher.Constraint("Distance", 55, Q("11.65369 mm")),
    Sketcher.Constraint("Distance", 59, Q("11.65369 mm")),
    Sketcher.Constraint("Distance", 61, Q("11.653691 mm")),
    Sketcher.Constraint("Distance", 63, Q("11.65369 mm")),
    Sketcher.Constraint("Distance", 65, Q("11.65369 mm")),
    Sketcher.Constraint("Distance", 67, Q("11.65369 mm")),
    Sketcher.Constraint("Distance", 69, Q("11.65369 mm")),
    Sketcher.Constraint("Distance", 71, Q("11.653691 mm")),
    Sketcher.Constraint("DistanceX", -1, 1, 1, 1, Q("18.198789 mm")),
    Sketcher.Constraint("DistanceY", -1, 1, 1, 1, Q("103.21046 mm")),
    Sketcher.Constraint("DistanceX", -1, 1, 2, 2, Q("20.222431 mm")),
    Sketcher.Constraint("DistanceX", 4, 1, -1, 1, Q("18.198789 mm")),
    Sketcher.Constraint("DistanceX", 5, 2, -1, 1, Q("20.222431 mm")),
    Sketcher.Constraint("DistanceY", -1, 1, 6, 2, Q("109.433161 mm")),
    Sketcher.Constraint("DistanceX", 9, 2, -1, 1, Q("58.228169 mm")),
    Sketcher.Constraint("DistanceX", 10, 2, -1, 1, Q("74.856691 mm")),
    Sketcher.Constraint("DistanceX", 13, 2, -1, 1, Q("89.21073 mm")),
    Sketcher.Constraint("DistanceY", -1, 1, 14, 2, Q("58.228169 mm")),
    Sketcher.Constraint("DistanceX", 17, 2, -1, 1, Q("109.433161 mm")),
    Sketcher.Constraint("DistanceY", -1, 1, 18, 2, Q("20.222431 mm")),
    Sketcher.Constraint("DistanceX", 19, 2, -1, 1, Q("103.21046 mm")),
    Sketcher.Constraint("DistanceY", 22, 2, -1, 1, Q("20.222431 mm")),
    Sketcher.Constraint("DistanceX", 23, 2, -1, 1, Q("103.21046 mm")),
    Sketcher.Constraint("DistanceY", 23, 2, -1, 1, Q("18.198789 mm")),
    Sketcher.Constraint("DistanceX", 25, 2, -1, 1, Q("109.433161 mm")),
    Sketcher.Constraint("DistanceY", 26, 2, -1, 1, Q("58.228169 mm")),
    Sketcher.Constraint("DistanceX", 29, 2, -1, 1, Q("89.21073 mm")),
    Sketcher.Constraint("DistanceY", 29, 2, -1, 1, Q("74.856691 mm")),
    Sketcher.Constraint("DistanceX", 30, 2, -1, 1, Q("74.856691 mm")),
    Sketcher.Constraint("DistanceY", 30, 2, -1, 1, Q("89.21073 mm")),
    Sketcher.Constraint("DistanceX", 33, 2, -1, 1, Q("58.228169 mm")),
    Sketcher.Constraint("DistanceY", 34, 2, -1, 1, Q("109.433161 mm")),
    Sketcher.Constraint("DistanceX", 36, 1, -1, 1, Q("18.198789 mm")),
    Sketcher.Constraint("DistanceY", 36, 1, -1, 1, Q("103.21046 mm")),
    Sketcher.Constraint("DistanceX", 37, 2, -1, 1, Q("20.222431 mm")),
    Sketcher.Constraint("DistanceX", -1, 1, 40, 1, Q("18.198789 mm")),
    Sketcher.Constraint("DistanceX", -1, 1, 41, 2, Q("20.222431 mm")),
    Sketcher.Constraint("DistanceY", 42, 2, -1, 1, Q("109.433161 mm")),
    Sketcher.Constraint("DistanceX", -1, 1, 45, 2, Q("58.228169 mm")),
    Sketcher.Constraint("DistanceX", -1, 1, 46, 2, Q("74.856691 mm")),
    Sketcher.Constraint("DistanceX", -1, 1, 49, 2, Q("89.21073 mm")),
    Sketcher.Constraint("DistanceY", 50, 2, -1, 1, Q("58.228169 mm")),
    Sketcher.Constraint("DistanceX", -1, 1, 53, 2, Q("109.433161 mm")),
    Sketcher.Constraint("DistanceY", 54, 2, -1, 1, Q("20.222431 mm")),
    Sketcher.Constraint("DistanceX", -1, 1, 55, 2, Q("103.21046 mm")),
    Sketcher.Constraint("DistanceY", -1, 1, 58, 2, Q("20.222431 mm")),
    Sketcher.Constraint("DistanceX", -1, 1, 59, 2, Q("103.21046 mm")),
    Sketcher.Constraint("DistanceY", -1, 1, 59, 2, Q("18.198789 mm")),
    Sketcher.Constraint("DistanceX", -1, 1, 61, 2, Q("109.433161 mm")),
    Sketcher.Constraint("DistanceY", -1, 1, 62, 2, Q("58.228169 mm")),
    Sketcher.Constraint("DistanceX", -1, 1, 65, 2, Q("89.21073 mm")),
    Sketcher.Constraint("DistanceY", -1, 1, 65, 2, Q("74.856691 mm")),
    Sketcher.Constraint("DistanceX", -1, 1, 66, 2, Q("74.856691 mm")),
    Sketcher.Constraint("DistanceY", -1, 1, 66, 2, Q("89.21073 mm")),
    Sketcher.Constraint("DistanceX", -1, 1, 69, 2, Q("58.228169 mm")),
    Sketcher.Constraint("DistanceY", -1, 1, 70, 2, Q("109.433161 mm")),
    Sketcher.Constraint("DistanceX", -1, 1, 26, 3, Q("0.000143 mm")),
    Sketcher.Constraint("DistanceY", -1, 1, 34, 3, Q("0.000143 mm")),
    Sketcher.Constraint("DistanceX", 62, 3, -1, 1, Q("0.000143 mm")),
    Sketcher.Constraint("DistanceY", 70, 3, -1, 1, Q("0.000143 mm")),
    Sketcher.Constraint("DistanceY", -1, 1, 0, 2, Q("104.802647 mm")),
    Sketcher.Constraint("DistanceX", 7, 2, -1, 1, Q("35.844616 mm")),
    Sketcher.Constraint("DistanceX", 8, 1, -1, 1, Q("52.401324 mm")),
    Sketcher.Constraint("DistanceX", 11, 2, -1, 1, Q("67.365843 mm")),
    Sketcher.Constraint("DistanceX", 12, 1, -1, 1, Q("80.283486 mm")),
    Sketcher.Constraint("DistanceX", 15, 2, -1, 1, Q("90.761755 mm")),
    Sketcher.Constraint("DistanceX", 16, 1, -1, 1, Q("98.482274 mm")),
    Sketcher.Constraint("DistanceX", 20, 1, -1, 1, Q("104.802647 mm")),
    Sketcher.Constraint("DistanceX", 24, 1, -1, 1, Q("98.482274 mm")),
    Sketcher.Constraint("DistanceY", 24, 1, -1, 1, Q("35.844616 mm")),
    Sketcher.Constraint("DistanceX", 27, 2, -1, 1, Q("90.761755 mm")),
    Sketcher.Constraint("DistanceX", 28, 1, -1, 1, Q("80.283486 mm")),
    Sketcher.Constraint("DistanceX", 31, 2, -1, 1, Q("67.365843 mm")),
    Sketcher.Constraint("DistanceX", 32, 1, -1, 1, Q("52.401324 mm")),
    Sketcher.Constraint("DistanceY", 32, 1, -1, 1, Q("90.761755 mm")),
    Sketcher.Constraint("DistanceX", 35, 2, -1, 1, Q("35.844616 mm")),
    Sketcher.Constraint("DistanceY", 38, 2, -1, 1, Q("116.456337 mm")),
    Sketcher.Constraint("DistanceX", -1, 1, 43, 2, Q("35.844616 mm")),
    Sketcher.Constraint("DistanceX", -1, 1, 44, 1, Q("52.401324 mm")),
    Sketcher.Constraint("DistanceX", -1, 1, 47, 2, Q("67.365843 mm")),
    Sketcher.Constraint("DistanceX", -1, 1, 48, 1, Q("80.283486 mm")),
    Sketcher.Constraint("DistanceX", -1, 1, 51, 2, Q("90.761755 mm")),
    Sketcher.Constraint("DistanceX", -1, 1, 52, 1, Q("98.482274 mm")),
    Sketcher.Constraint("DistanceX", -1, 1, 56, 1, Q("104.802647 mm")),
    Sketcher.Constraint("DistanceX", -1, 1, 60, 1, Q("98.482274 mm")),
    Sketcher.Constraint("DistanceY", -1, 1, 60, 1, Q("35.844616 mm")),
    Sketcher.Constraint("DistanceX", -1, 1, 63, 2, Q("90.761755 mm")),
    Sketcher.Constraint("DistanceX", -1, 1, 64, 1, Q("80.283486 mm")),
    Sketcher.Constraint("DistanceX", -1, 1, 67, 2, Q("67.365843 mm")),
    Sketcher.Constraint("DistanceX", -1, 1, 68, 1, Q("52.401324 mm")),
    Sketcher.Constraint("DistanceY", -1, 1, 68, 1, Q("90.761755 mm")),
    Sketcher.Constraint("DistanceX", -1, 1, 71, 2, Q("35.844616 mm")),
])
pocket1 = body.newObject("PartDesign::Pocket", "Pocket")
pocket1.Profile = sketch3
pocket1.Length = 25

# Sketch on XY plane
sketch4 = body.newObject("Sketcher::SketchObject", "Sketch003")
sketch4.AttachmentSupport = (doc.getObject("XY_Plane"), [""])
sketch4.MapMode = "FlatFace"
sketch4.AttachmentOffset = App.Placement(V(0, 0, 10), App.Rotation())
sketch4.addGeometry(Part.Circle(V(0, 0, 0), V(0, 0, 1), 97.834201), False)
sketch4.addConstraint([
    Sketcher.Constraint("Coincident", 0, 3, -1, 1),
    Sketcher.Constraint("Diameter", 0, Q("195.668402 mm")),
])
pocket2 = body.newObject("PartDesign::Pocket", "Pocket001")
pocket2.Profile = sketch4
pocket2.Length = 25

doc.recompute()
